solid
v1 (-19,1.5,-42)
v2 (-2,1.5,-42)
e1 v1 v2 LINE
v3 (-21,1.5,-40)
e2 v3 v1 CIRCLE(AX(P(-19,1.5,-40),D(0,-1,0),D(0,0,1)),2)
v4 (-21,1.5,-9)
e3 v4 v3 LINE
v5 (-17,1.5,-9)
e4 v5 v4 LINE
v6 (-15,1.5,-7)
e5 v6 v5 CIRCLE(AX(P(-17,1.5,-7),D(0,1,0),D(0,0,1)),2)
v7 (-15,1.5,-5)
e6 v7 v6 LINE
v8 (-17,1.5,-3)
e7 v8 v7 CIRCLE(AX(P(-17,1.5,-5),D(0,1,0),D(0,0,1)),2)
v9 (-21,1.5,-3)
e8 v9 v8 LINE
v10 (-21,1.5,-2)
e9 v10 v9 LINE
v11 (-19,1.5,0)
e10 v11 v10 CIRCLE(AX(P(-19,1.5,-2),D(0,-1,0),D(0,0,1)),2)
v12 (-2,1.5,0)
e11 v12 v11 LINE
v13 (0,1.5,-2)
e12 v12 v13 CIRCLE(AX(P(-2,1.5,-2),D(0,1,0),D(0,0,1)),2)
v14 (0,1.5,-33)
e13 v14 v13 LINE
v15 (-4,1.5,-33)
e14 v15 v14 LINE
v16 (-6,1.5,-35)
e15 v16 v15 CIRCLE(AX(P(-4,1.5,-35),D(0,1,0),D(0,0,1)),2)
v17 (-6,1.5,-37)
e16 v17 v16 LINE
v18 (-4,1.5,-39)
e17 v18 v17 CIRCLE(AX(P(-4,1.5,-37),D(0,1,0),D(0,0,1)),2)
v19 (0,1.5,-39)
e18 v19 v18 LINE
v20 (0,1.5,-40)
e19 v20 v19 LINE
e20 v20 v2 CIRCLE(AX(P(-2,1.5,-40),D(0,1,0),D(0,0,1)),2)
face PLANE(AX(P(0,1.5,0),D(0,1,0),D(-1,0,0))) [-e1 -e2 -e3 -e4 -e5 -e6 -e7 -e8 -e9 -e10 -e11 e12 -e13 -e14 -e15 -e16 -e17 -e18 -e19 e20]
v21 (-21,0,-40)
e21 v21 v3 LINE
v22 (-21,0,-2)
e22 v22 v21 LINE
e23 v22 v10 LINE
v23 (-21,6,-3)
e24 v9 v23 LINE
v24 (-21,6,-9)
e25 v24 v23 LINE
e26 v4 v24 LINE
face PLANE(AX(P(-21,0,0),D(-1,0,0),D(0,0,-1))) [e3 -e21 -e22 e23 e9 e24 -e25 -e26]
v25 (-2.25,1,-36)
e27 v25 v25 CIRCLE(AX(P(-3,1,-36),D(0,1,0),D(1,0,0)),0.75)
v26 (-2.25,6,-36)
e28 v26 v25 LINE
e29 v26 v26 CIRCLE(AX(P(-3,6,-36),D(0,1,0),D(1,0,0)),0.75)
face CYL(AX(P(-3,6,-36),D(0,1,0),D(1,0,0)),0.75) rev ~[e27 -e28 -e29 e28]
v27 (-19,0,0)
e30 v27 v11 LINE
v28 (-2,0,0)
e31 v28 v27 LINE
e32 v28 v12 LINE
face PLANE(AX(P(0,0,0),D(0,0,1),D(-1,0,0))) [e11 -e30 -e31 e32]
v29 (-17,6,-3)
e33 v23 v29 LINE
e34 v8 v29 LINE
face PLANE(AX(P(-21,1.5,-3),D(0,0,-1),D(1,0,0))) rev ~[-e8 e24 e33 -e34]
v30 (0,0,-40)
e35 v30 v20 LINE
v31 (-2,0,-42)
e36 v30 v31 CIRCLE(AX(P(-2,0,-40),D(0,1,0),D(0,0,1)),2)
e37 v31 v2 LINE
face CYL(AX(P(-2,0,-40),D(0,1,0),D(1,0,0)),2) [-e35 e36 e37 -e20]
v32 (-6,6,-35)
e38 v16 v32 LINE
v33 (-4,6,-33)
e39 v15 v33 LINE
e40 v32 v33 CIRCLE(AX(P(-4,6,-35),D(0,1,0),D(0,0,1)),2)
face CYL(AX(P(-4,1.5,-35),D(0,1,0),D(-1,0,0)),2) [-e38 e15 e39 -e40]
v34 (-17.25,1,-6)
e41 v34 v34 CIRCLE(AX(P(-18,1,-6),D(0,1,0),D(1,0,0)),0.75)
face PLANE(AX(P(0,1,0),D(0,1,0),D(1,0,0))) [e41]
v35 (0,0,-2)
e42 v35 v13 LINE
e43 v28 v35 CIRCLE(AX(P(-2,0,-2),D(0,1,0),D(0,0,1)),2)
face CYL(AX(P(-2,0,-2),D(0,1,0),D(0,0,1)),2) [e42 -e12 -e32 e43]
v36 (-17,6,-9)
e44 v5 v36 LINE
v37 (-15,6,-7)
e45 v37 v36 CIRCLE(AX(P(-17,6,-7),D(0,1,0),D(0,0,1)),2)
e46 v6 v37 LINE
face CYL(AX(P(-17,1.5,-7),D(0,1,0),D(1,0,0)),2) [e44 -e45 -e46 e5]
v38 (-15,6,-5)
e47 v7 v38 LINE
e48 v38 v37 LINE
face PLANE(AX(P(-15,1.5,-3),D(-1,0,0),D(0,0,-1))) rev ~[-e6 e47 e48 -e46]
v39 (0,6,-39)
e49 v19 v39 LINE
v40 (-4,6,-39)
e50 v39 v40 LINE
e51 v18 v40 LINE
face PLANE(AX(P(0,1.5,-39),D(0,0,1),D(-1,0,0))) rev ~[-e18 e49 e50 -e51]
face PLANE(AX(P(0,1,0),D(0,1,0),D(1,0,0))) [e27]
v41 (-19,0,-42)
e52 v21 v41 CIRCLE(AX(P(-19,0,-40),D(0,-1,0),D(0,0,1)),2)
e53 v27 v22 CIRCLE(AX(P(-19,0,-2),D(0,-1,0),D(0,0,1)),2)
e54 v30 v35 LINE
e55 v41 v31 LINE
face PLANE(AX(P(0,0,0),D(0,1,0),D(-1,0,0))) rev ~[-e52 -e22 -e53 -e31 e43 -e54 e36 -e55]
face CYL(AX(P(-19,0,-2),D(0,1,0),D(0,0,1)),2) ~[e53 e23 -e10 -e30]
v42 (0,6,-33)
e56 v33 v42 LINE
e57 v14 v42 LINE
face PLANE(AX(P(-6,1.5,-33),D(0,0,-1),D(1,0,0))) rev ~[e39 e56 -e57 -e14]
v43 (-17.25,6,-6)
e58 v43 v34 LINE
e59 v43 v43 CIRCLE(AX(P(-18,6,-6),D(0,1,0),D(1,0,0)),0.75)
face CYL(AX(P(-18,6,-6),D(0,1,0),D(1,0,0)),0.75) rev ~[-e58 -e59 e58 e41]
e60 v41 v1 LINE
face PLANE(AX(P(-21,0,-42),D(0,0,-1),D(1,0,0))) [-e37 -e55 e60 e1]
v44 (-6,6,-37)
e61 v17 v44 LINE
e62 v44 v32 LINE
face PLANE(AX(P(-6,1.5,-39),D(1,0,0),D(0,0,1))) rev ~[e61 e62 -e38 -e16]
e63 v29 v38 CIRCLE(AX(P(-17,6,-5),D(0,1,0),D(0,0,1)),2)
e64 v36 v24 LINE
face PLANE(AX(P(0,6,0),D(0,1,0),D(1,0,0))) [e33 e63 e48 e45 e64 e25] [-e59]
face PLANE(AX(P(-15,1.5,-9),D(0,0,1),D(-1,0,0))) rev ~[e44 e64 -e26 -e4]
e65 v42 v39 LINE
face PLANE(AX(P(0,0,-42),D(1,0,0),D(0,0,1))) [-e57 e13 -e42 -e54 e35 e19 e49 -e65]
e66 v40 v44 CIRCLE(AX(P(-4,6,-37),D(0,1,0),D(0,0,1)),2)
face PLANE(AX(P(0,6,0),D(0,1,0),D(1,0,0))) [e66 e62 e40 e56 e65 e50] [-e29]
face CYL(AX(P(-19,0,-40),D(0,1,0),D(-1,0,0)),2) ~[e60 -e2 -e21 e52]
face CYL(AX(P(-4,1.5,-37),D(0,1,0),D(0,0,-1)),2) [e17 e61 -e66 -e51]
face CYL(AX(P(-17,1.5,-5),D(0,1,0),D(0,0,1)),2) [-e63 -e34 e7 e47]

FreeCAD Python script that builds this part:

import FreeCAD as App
import Part
import Sketcher
from FreeCAD import Vector
Q = App.Units.Quantity


def edges_at(feature, points):
    """Names of the edges that pass closest to the given points."""
    edges = feature.Shape.Edges
    near = lambda p: min(range(len(edges)), key=lambda i: edges[i].distToShape(Part.Vertex(*p))[0])
    return sorted({f"Edge{near(p) + 1}" for p in points})


def add_polygon(sketch, points):
    """Adds a closed chain of lines whose ends are joined by coincident constraints."""
    first, n = sketch.GeometryCount, len(points)
    for a, b in zip(points, points[1:] + points[:1]):
        sketch.addGeometry(Part.LineSegment(App.Vector(*a, 0), App.Vector(*b, 0)), False)
    for i in range(n):
        sketch.addConstraint(Sketcher.Constraint("Coincident", first + i, 2, first + (i + 1) % n, 1))

doc = App.newDocument("Part")
body = doc.addObject("PartDesign::Body", "Body")

# Sketch on XZ plane
sketch1 = body.newObject("Sketcher::SketchObject", "Sketch")
sketch1.AttachmentSupport = (doc.getObject("XZ_Plane"), [""])
sketch1.MapMode = "FlatFace"
add_polygon(sketch1, [(-21, 0), (0, 0), (0, -42), (-21, -42)])  # lines 0-3
sketch1.addConstraint([
    Sketcher.Constraint("Horizontal", 0),
    Sketcher.Constraint("Vertical", 1),
    Sketcher.Constraint("Horizontal", 2),
    Sketcher.Constraint("Vertical", 3),
    Sketcher.Constraint("Coincident", 0, 2, -1, 1),
    Sketcher.Constraint("DistanceX", 0, 1, 0, 2, Q("21 mm")),
    Sketcher.Constraint("DistanceY", 1, 2, 1, 1, Q("42 mm")),
])
pad1 = body.newObject("PartDesign::Pad", "Pad")
pad1.Profile = sketch1
pad1.Length = 1.5
pad1.Reversed = True

# Sketch on XZ plane
sketch2 = body.newObject("Sketcher::SketchObject", "Sketch001")
sketch2.AttachmentSupport = (doc.getObject("XZ_Plane"), [""])
sketch2.MapMode = "FlatFace"
sketch2.AttachmentOffset = App.Placement(Vector(0, 0, -1.5), App.Rotation())
add_polygon(sketch2, [(-6, -33), (0, -33), (0, -39), (-6, -39)])  # lines 0-3
add_polygon(sketch2, [(-21, -9), (-21, -3), (-15, -3), (-15, -9)])  # lines 4-7
sketch2.addConstraint([
    Sketcher.Constraint("Horizontal", 0),
    Sketcher.Constraint("Vertical", 1),
    Sketcher.Constraint("Horizontal", 2),
    Sketcher.Constraint("Vertical", 3),
    Sketcher.Constraint("Vertical", 4),
    Sketcher.Constraint("Horizontal", 5),
    Sketcher.Constraint("Vertical", 6),
    Sketcher.Constraint("Horizontal", 7),
    Sketcher.Constraint("PointOnObject", 0, 2, -2),
    Sketcher.Constraint("Equal", 2, 5),
    Sketcher.Constraint("Equal", 7, 1),
    Sketcher.Constraint("Equal", 3, 4),
    Sketcher.Constraint("DistanceX", 0, 1, 0, 2, Q("6 mm")),
    Sketcher.Constraint("DistanceY", 4, 2, -1, 1, Q("3 mm")),
    Sketcher.Constraint("DistanceY", 0, 2, -1, 1, Q("33 mm")),
    Sketcher.Constraint("DistanceX", 4, 2, -1, 1, Q("21 mm")),
])
pad2 = body.newObject("PartDesign::Pad", "Pad001")
pad2.Profile = sketch2
pad2.Length = 4.5
pad2.Reversed = True
doc.recompute()

fillet = body.newObject("PartDesign::Fillet", "Fillet")
fillet.Base = (pad2, edges_at(pad2, [
    (-15, 3.75, -3),
    (-15, 3.75, -9),
    (-6, 3.75, -33),
    (-6, 3.75, -39),
    (0, 0.75, 0),
    (0, 0.75, -42),
    (-21, 0.75, 0),
    (-21, 0.75, -42),
]))
fillet.Radius = 2

# Sketch on XZ plane
sketch3 = body.newObject("Sketcher::SketchObject", "Sketch002")
sketch3.AttachmentSupport = (doc.getObject("XZ_Plane"), [""])
sketch3.MapMode = "FlatFace"
sketch3.AttachmentOffset = App.Placement(Vector(0, 0, -6), App.Rotation())
sketch3.addGeometry([
    Part.Circle(Vector(-18, -6, 0), Vector(0, 0, 1), 0.8),
    Part.Circle(Vector(-3, -36, 0), Vector(0, 0, 1), 0.8),
], False)
sketch3.addConstraint([
    Sketcher.Constraint("Equal", 0, 1),
    Sketcher.Constraint("Diameter", 0, Q("1.5 mm")),
    Sketcher.Constraint("DistanceX", 1, 3, -1, 1, Q("3 mm")),
    Sketcher.Constraint("DistanceX", 0, 3, -1, 1, Q("18 mm")),
    Sketcher.Constraint("DistanceY", 0, 3, -1, 1, Q("6 mm")),
    Sketcher.Constraint("DistanceY", 1, 3, -1, 1, Q("36 mm")),
])
pocket1 = body.newObject("PartDesign::Pocket", "Pocket")
pocket1.Profile = sketch3
pocket1.Length = 5
pocket1.Reversed = True

doc.recompute()
